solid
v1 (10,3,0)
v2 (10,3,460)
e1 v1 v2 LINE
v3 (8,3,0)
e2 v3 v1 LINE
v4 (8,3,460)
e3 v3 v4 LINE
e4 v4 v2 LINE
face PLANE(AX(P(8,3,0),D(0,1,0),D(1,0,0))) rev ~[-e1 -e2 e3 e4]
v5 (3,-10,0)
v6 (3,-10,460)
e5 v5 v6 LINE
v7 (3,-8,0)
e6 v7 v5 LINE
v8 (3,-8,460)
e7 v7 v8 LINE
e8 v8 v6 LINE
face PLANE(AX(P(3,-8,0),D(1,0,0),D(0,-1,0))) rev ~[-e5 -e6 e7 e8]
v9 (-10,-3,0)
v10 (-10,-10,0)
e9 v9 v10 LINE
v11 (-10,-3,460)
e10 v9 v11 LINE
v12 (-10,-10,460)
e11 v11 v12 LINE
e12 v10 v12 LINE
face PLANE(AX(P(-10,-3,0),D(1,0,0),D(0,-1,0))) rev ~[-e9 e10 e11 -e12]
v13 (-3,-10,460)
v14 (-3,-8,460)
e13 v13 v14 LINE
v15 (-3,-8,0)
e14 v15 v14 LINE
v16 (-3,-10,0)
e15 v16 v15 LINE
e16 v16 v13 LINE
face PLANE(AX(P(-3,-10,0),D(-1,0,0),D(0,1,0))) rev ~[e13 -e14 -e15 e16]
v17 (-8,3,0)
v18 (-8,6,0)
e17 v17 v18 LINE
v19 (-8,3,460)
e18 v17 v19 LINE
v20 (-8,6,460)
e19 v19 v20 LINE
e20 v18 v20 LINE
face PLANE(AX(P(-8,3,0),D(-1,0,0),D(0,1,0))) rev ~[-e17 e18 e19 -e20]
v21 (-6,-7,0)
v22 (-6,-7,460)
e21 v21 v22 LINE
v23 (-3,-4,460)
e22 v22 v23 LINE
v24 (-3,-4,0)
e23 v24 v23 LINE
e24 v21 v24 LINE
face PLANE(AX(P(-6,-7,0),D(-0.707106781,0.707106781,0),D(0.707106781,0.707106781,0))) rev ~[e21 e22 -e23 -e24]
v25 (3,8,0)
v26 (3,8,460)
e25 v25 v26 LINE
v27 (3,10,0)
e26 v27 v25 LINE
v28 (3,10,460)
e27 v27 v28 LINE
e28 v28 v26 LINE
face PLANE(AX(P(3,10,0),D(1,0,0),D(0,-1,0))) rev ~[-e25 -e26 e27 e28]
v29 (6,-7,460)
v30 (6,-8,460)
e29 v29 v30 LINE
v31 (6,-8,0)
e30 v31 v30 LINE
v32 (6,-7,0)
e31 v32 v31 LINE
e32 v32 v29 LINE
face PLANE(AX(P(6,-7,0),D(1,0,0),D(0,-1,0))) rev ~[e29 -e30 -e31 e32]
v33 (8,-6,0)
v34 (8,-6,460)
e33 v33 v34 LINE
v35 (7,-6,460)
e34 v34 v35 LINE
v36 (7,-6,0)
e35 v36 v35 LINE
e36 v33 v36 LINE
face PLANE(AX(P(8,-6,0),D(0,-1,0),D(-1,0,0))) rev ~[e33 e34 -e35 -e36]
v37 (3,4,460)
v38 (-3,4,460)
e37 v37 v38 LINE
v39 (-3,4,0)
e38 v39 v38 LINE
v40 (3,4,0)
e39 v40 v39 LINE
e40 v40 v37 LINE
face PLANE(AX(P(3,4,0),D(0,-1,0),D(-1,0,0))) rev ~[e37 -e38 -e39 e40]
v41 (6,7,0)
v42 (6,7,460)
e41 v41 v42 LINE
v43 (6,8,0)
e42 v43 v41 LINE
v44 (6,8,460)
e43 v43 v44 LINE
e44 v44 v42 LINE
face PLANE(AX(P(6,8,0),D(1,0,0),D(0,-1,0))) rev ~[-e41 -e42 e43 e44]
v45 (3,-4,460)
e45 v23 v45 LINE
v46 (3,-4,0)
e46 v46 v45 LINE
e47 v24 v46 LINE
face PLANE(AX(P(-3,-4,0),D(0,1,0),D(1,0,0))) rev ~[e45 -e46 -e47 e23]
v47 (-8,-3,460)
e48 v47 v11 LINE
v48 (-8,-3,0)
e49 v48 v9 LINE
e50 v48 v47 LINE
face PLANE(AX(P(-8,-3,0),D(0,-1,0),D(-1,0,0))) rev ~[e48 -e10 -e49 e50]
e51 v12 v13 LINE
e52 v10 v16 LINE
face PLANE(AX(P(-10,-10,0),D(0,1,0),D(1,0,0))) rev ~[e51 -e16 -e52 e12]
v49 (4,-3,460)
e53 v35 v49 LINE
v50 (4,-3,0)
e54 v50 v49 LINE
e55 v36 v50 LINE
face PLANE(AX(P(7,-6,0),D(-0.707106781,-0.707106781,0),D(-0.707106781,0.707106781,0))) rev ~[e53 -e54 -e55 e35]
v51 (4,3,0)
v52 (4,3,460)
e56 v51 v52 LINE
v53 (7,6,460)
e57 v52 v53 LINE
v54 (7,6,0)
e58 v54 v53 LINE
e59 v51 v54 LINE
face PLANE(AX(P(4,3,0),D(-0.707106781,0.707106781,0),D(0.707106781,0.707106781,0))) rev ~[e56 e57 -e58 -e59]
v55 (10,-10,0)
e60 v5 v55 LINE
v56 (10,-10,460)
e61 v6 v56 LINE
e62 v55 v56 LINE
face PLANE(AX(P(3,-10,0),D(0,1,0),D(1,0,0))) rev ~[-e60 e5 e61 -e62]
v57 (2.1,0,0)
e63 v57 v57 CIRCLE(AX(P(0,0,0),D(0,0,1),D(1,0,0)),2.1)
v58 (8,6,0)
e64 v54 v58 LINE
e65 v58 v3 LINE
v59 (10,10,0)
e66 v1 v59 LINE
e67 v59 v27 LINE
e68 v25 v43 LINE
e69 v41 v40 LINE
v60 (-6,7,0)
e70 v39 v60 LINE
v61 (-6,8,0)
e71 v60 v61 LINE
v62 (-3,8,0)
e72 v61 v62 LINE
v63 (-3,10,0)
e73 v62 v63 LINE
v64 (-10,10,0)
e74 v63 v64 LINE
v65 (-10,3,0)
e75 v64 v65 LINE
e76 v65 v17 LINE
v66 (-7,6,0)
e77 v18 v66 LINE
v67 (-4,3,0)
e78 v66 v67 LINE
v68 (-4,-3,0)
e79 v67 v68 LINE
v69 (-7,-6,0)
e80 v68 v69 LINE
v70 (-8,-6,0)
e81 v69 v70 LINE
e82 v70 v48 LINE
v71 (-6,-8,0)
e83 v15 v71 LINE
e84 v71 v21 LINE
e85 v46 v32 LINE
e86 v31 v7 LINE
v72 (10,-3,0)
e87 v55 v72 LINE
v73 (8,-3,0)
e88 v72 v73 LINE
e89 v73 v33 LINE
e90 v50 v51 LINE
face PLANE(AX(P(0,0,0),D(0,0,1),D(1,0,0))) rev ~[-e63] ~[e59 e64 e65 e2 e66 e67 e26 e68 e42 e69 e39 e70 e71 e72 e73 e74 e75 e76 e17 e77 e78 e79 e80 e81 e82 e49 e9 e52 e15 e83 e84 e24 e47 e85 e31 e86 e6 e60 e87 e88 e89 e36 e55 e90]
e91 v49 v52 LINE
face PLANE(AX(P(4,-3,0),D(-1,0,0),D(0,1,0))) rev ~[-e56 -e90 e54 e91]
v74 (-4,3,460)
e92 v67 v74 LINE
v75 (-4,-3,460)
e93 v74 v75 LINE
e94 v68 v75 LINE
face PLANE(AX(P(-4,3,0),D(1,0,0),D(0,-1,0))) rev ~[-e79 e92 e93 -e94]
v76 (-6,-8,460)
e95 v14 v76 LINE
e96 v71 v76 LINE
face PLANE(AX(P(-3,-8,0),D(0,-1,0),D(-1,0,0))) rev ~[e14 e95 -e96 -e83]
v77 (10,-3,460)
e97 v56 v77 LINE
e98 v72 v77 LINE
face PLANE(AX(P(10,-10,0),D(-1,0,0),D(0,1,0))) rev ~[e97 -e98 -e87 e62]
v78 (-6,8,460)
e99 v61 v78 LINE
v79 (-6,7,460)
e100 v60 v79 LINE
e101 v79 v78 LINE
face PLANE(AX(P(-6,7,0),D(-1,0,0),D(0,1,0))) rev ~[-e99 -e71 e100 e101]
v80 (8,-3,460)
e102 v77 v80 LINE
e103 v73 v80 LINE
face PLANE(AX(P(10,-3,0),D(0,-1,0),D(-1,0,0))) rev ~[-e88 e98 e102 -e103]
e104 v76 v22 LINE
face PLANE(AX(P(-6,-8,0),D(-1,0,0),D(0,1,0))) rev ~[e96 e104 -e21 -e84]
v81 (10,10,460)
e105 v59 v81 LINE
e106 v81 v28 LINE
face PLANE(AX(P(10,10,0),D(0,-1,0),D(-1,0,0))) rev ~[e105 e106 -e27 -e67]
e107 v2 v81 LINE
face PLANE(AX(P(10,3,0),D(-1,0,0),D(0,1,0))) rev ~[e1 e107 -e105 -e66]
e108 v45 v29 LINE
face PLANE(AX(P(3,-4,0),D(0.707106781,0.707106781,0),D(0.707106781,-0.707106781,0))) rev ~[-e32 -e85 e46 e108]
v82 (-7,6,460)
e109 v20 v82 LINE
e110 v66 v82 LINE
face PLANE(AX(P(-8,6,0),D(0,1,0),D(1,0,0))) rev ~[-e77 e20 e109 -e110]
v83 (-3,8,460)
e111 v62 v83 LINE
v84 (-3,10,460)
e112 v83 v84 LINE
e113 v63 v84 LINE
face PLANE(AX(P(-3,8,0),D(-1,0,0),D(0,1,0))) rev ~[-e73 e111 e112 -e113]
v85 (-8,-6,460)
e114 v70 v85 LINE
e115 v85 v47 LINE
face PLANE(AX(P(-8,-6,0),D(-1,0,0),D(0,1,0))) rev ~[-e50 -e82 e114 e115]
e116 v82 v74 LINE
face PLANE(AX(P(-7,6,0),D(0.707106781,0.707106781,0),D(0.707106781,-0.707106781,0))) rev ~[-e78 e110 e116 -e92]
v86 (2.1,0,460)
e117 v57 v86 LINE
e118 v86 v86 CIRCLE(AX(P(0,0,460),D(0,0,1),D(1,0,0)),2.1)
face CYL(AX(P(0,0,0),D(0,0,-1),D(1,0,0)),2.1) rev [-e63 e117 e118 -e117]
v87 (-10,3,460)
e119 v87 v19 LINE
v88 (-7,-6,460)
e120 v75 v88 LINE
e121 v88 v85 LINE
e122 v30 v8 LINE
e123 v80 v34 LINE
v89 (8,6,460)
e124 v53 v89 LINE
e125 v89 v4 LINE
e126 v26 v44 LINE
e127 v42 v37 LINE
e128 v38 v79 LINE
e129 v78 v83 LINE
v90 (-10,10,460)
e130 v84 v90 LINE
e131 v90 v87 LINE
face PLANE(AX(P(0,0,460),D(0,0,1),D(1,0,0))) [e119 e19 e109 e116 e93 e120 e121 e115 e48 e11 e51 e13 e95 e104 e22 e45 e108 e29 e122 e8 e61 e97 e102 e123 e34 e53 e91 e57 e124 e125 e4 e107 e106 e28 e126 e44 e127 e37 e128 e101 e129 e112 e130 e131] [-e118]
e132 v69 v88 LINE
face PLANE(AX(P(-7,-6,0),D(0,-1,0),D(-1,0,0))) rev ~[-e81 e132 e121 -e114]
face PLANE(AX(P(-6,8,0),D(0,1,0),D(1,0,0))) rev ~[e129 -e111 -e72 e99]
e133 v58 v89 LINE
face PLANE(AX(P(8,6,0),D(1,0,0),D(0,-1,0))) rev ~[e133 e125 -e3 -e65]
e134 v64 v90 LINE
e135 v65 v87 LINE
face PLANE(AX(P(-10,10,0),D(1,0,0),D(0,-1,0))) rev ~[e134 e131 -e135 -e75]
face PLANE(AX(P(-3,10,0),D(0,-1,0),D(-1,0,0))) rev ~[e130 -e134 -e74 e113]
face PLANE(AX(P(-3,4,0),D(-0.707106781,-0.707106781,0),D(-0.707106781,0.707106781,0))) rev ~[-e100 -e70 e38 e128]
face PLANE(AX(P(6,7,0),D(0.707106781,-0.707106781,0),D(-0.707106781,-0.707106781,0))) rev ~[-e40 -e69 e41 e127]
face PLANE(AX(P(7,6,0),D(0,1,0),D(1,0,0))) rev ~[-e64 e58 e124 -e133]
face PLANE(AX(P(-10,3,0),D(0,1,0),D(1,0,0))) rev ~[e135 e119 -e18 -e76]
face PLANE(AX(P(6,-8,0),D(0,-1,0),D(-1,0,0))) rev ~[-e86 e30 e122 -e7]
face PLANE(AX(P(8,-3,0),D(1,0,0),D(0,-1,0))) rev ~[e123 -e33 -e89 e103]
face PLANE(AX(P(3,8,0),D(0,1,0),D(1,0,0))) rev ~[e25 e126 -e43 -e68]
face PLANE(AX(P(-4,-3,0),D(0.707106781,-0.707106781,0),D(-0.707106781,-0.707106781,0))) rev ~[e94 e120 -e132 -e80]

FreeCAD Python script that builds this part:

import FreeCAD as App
import Part
import Sketcher

V = App.Vector
Q = App.Units.Quantity


def add_polygon(sketch, points):
    """Adds a closed chain of lines whose ends are joined by coincident constraints."""
    first, n = sketch.GeometryCount, len(points)
    for a, b in zip(points, points[1:] + points[:1]):
        sketch.addGeometry(Part.LineSegment(App.Vector(*a, 0), App.Vector(*b, 0)), False)
    for i in range(n):
        sketch.addConstraint(Sketcher.Constraint("Coincident", first + i, 2, first + (i + 1) % n, 1))

doc = App.newDocument("Part")
body = doc.addObject("PartDesign::Body", "Body")

sketch1 = body.newObject("Sketcher::SketchObject", "Sketch")
sketch1.AttachmentSupport = (doc.getObject("XY_Plane"), [""])
sketch1.MapMode = "FlatFace"
add_polygon(sketch1, [(3, 4), (-3, 4), (-6, 7), (-6, 8), (-3, 8), (-3, 10), (-10, 10), (-10, 3), (-8, 3), (-8, 6), (-7, 6), (-4, 3), (-4, -3), (-7, -6), (-8, -6), (-8, -3), (-10, -3), (-10, -10), (-3, -10), (-3, -8), (-6, -8), (-6, -7), (-3, -4), (3, -4), (6, -7), (6, -8), (3, -8), (3, -10), (10, -10), (10, -3), (8, -3), (8, -6), (7, -6), (4, -3), (4, 3), (7, 6), (8, 6), (8, 3), (10, 3), (10, 10), (3, 10), (3, 8), (6, 8), (6, 7)])
sketch1.addGeometry(Part.Circle(V(0, 0, 0), V(0, 0, 1), 2.1), False)
sketch1.addConstraint(Sketcher.Constraint("Horizontal", 0))
sketch1.addConstraint(Sketcher.Constraint("Vertical", 2))
sketch1.addConstraint(Sketcher.Constraint("Horizontal", 3))
sketch1.addConstraint(Sketcher.Constraint("Vertical", 4))
sketch1.addConstraint(Sketcher.Constraint("Horizontal", 5))
sketch1.addConstraint(Sketcher.Constraint("Vertical", 6))
sketch1.addConstraint(Sketcher.Constraint("Horizontal", 7))
sketch1.addConstraint(Sketcher.Constraint("Vertical", 8))
sketch1.addConstraint(Sketcher.Constraint("Horizontal", 9))
sketch1.addConstraint(Sketcher.Constraint("Vertical", 11))
sketch1.addConstraint(Sketcher.Constraint("Horizontal", 13))
sketch1.addConstraint(Sketcher.Constraint("Vertical", 14))
sketch1.addConstraint(Sketcher.Constraint("Horizontal", 15))
sketch1.addConstraint(Sketcher.Constraint("Vertical", 16))
sketch1.addConstraint(Sketcher.Constraint("Horizontal", 17))
sketch1.addConstraint(Sketcher.Constraint("Vertical", 18))
sketch1.addConstraint(Sketcher.Constraint("Horizontal", 19))
sketch1.addConstraint(Sketcher.Constraint("Vertical", 20))
sketch1.addConstraint(Sketcher.Constraint("Horizontal", 22))
sketch1.addConstraint(Sketcher.Constraint("Vertical", 24))
sketch1.addConstraint(Sketcher.Constraint("Horizontal", 25))
sketch1.addConstraint(Sketcher.Constraint("Vertical", 26))
sketch1.addConstraint(Sketcher.Constraint("Horizontal", 27))
sketch1.addConstraint(Sketcher.Constraint("Vertical", 28))
sketch1.addConstraint(Sketcher.Constraint("Horizontal", 29))
sketch1.addConstraint(Sketcher.Constraint("Vertical", 30))
sketch1.addConstraint(Sketcher.Constraint("Horizontal", 31))
sketch1.addConstraint(Sketcher.Constraint("Vertical", 33))
sketch1.addConstraint(Sketcher.Constraint("Horizontal", 35))
sketch1.addConstraint(Sketcher.Constraint("Vertical", 36))
sketch1.addConstraint(Sketcher.Constraint("Horizontal", 37))
sketch1.addConstraint(Sketcher.Constraint("Vertical", 38))
sketch1.addConstraint(Sketcher.Constraint("Horizontal", 39))
sketch1.addConstraint(Sketcher.Constraint("Vertical", 40))
sketch1.addConstraint(Sketcher.Constraint("Horizontal", 41))
sketch1.addConstraint(Sketcher.Constraint("Vertical", 42))
sketch1.addConstraint(Sketcher.Constraint("Coincident", 44, 3, -1, 1))
sketch1.addConstraint(Sketcher.Constraint("Symmetric", 0, 2, 22, 2, -1, 1))
sketch1.addConstraint(Sketcher.Constraint("Symmetric", 1, 2, 23, 2, -1, 1))
sketch1.addConstraint(Sketcher.Constraint("Symmetric", 3, 2, 25, 2, -1, 1))
sketch1.addConstraint(Sketcher.Constraint("Symmetric", 5, 2, 27, 2, -1, 1))
sketch1.addConstraint(Sketcher.Constraint("Symmetric", 7, 2, 29, 2, -1, 1))
sketch1.addConstraint(Sketcher.Constraint("Symmetric", 9, 2, 31, 2, -1, 1))
sketch1.addConstraint(Sketcher.Constraint("Symmetric", 10, 2, 32, 2, -1, 1))
sketch1.addConstraint(Sketcher.Constraint("Symmetric", 12, 2, 34, 2, -1, 1))
sketch1.addConstraint(Sketcher.Constraint("Symmetric", 14, 2, 36, 2, -1, 1))
sketch1.addConstraint(Sketcher.Constraint("Symmetric", 16, 2, 38, 2, -1, 1))
sketch1.addConstraint(Sketcher.Constraint("Symmetric", 18, 2, 40, 2, -1, 1))
sketch1.addConstraint(Sketcher.Constraint("Symmetric", 20, 2, 42, 2, -1, 1))
sketch1.addConstraint(Sketcher.Constraint("Symmetric", 20, 2, 23, 2, -2))
sketch1.addConstraint(Sketcher.Constraint("Symmetric", 18, 2, 25, 2, -2))
sketch1.addConstraint(Sketcher.Constraint("Symmetric", 16, 2, 27, 2, -2))
sketch1.addConstraint(Sketcher.Constraint("Symmetric", 14, 2, 29, 2, -2))
sketch1.addConstraint(Sketcher.Constraint("Symmetric", 12, 2, 31, 2, -2))
sketch1.addConstraint(Sketcher.Constraint("Parallel", 1, 10))
sketch1.addConstraint(Sketcher.Constraint("Perpendicular", 10, 12))
sketch1.addConstraint(Sketcher.Constraint("Parallel", 12, 21))
sketch1.addConstraint(Sketcher.Constraint("Perpendicular", 32, 34))
sketch1.addConstraint(Sketcher.Constraint("Parallel", 34, 43))
sketch1.addConstraint(Sketcher.Constraint("Horizontal", 7, 2, 10, 2))
sketch1.addConstraint(Sketcher.Constraint("Horizontal", 11, 2, 14, 2))
sketch1.addConstraint(Sketcher.Constraint("Vertical", 0, 2, 3, 2))
sketch1.addConstraint(Sketcher.Constraint("Equal", 35, 2))
sketch1.addConstraint(Sketcher.Constraint("Equal", 37, 4))
sketch1.addConstraint(Sketcher.Constraint("Equal", 39, 6))
sketch1.addConstraint(Sketcher.Constraint("Equal", 41, 8))
sketch1.addConstraint(Sketcher.Constraint("Equal", 22, 11))
sketch1.addConstraint(Sketcher.Constraint("Diameter", 44, Q("4.2 mm")))
sketch1.addConstraint(Sketcher.Constraint("DistanceX", 0, 2, 0, 1, Q("6 mm")))
sketch1.addConstraint(Sketcher.Constraint("DistanceX", 3, 1, 3, 2, Q("3 mm")))
sketch1.addConstraint(Sketcher.Constraint("DistanceX", 5, 2, 5, 1, Q("7 mm")))
sketch1.addConstraint(Sketcher.Constraint("DistanceX", 7, 1, 7, 2, Q("2 mm")))
sketch1.addConstraint(Sketcher.Constraint("DistanceX", 9, 1, 9, 2, Q("1 mm")))
pad1 = body.newObject("PartDesign::Pad", "Pad")
pad1.Profile = sketch1
pad1.Length = 460

doc.recompute()
